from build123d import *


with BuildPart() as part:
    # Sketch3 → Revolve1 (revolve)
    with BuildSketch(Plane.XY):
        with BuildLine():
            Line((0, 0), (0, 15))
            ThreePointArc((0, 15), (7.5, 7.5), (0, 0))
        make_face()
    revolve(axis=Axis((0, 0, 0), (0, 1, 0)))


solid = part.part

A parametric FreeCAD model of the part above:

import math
import FreeCAD as App
import Part
import Sketcher

V = App.Vector

doc = App.newDocument("Part")
body = doc.addObject("PartDesign::Body", "Body")

# Sketch on XY plane
sketch1 = body.newObject("Sketcher::SketchObject", "Sketch")
sketch1.AttachmentSupport = (doc.getObject("XY_Plane"), [""])
sketch1.MapMode = "FlatFace"
sketch1.addGeometry([
    Part.LineSegment(V(0, 15, 0), V(0, 0, 0)),
    Part.ArcOfCircle(Part.Circle(V(0, 8, 0), V(0, 0, 1), 8), math.radians(-90), math.radians(90)),
], False)
sketch1.addConstraint([
    Sketcher.Constraint("Coincident", 0, 1, 1, 2),
    Sketcher.Constraint("Coincident", 1, 1, 0, 2),
    Sketcher.Constraint("Vertical", 0),
    Sketcher.Constraint("Coincident", 1, 1, -1, 1),
    Sketcher.Constraint("PointOnObject", 1, 3, -2),
    Sketcher.Constraint("Radius", 1, 7.5),
])
revolution = body.newObject("PartDesign::Revolution", "Revolution")
revolution.Profile = sketch1
revolution.ReferenceAxis = (sketch1, ["V_Axis"])
revolution.Angle = 360

doc.recompute()
